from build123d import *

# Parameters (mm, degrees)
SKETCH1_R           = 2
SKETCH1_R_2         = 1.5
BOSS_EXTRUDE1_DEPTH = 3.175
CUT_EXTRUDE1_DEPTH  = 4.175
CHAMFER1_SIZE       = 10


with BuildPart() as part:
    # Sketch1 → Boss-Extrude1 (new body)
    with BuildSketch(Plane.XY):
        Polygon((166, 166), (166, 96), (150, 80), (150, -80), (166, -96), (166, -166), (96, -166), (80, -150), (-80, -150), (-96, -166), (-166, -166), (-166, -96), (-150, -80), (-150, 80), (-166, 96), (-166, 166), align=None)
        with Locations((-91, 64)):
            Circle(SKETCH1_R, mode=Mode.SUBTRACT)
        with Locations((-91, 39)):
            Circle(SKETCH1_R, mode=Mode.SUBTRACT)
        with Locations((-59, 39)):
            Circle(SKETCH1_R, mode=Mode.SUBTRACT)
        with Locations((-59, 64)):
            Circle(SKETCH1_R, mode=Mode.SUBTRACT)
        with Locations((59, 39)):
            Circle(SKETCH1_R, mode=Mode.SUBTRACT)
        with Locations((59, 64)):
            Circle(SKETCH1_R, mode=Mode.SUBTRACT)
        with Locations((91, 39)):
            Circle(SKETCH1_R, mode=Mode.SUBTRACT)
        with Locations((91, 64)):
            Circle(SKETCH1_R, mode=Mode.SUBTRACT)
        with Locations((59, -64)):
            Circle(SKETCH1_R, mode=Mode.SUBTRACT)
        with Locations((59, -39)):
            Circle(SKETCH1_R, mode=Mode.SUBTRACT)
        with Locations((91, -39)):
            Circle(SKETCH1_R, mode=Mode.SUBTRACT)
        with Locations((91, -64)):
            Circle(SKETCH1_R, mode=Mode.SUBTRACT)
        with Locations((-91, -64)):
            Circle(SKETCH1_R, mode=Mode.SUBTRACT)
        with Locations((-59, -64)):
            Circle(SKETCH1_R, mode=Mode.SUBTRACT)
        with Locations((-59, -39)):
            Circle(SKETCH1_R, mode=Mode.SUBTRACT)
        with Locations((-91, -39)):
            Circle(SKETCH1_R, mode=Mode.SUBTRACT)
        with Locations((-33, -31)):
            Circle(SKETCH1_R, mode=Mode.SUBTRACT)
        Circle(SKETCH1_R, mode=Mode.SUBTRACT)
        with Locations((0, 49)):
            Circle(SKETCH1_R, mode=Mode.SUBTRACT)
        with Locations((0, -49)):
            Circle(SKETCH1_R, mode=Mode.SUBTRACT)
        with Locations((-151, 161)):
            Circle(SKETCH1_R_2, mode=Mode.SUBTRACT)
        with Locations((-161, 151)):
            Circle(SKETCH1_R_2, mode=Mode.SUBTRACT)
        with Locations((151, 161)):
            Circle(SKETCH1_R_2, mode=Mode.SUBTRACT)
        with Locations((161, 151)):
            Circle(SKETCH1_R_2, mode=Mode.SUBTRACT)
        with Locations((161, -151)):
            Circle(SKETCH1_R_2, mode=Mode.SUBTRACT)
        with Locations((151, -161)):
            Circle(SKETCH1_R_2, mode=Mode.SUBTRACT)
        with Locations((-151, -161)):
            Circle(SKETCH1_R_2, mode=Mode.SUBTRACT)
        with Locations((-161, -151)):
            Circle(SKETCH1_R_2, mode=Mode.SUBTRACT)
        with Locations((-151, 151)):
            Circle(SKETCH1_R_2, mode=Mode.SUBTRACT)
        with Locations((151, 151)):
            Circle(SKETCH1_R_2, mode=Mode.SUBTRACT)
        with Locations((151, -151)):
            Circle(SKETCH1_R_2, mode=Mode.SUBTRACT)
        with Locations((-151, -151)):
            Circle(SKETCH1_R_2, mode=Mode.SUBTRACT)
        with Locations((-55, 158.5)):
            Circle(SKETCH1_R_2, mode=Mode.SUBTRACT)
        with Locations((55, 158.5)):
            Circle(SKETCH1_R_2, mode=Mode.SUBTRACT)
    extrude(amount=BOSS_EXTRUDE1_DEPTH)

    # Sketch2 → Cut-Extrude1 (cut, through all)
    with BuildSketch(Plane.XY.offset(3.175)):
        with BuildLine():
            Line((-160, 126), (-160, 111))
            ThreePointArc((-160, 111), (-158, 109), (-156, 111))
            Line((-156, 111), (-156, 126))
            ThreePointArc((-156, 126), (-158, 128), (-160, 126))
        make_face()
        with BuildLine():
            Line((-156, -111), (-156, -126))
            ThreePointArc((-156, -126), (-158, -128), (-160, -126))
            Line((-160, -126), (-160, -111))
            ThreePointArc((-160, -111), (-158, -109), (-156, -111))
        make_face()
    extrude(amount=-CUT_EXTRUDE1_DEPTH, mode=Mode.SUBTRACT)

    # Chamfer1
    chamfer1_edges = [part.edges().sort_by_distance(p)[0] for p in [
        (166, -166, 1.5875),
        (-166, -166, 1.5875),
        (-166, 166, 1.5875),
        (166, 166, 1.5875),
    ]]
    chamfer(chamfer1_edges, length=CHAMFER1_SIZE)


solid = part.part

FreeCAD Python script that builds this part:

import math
import FreeCAD as App
import Part
import Sketcher

V = App.Vector


def edges_at(feature, points):
    """Names of the edges that pass closest to the given points."""
    edges = feature.Shape.Edges
    near = lambda p: min(range(len(edges)), key=lambda i: edges[i].distToShape(Part.Vertex(*p))[0])
    return sorted({f"Edge{near(p) + 1}" for p in points})


def add_polygon(sketch, points):
    """Adds a closed chain of lines whose ends are joined by coincident constraints."""
    first, n = sketch.GeometryCount, len(points)
    for a, b in zip(points, points[1:] + points[:1]):
        sketch.addGeometry(Part.LineSegment(App.Vector(*a, 0), App.Vector(*b, 0)), False)
    for i in range(n):
        sketch.addConstraint(Sketcher.Constraint("Coincident", first + i, 2, first + (i + 1) % n, 1))

doc = App.newDocument("Part")
body = doc.addObject("PartDesign::Body", "Body")

# Sketch on XY plane
sketch1 = body.newObject("Sketcher::SketchObject", "Sketch")
sketch1.AttachmentSupport = (doc.getObject("XY_Plane"), [""])
sketch1.MapMode = "FlatFace"
add_polygon(sketch1, [(166, 96), (166, 166), (-166, 166), (-166, 96), (-150, 80), (-150, -80), (-166, -96), (-166, -166), (-96, -166), (-80, -150), (80, -150), (96, -166), (166, -166), (166, -96), (150, -80), (150, 80)])  # lines 0-15
sketch1.addGeometry(Part.Circle(V(151, -161, 0), V(0, 0, 1), 1.5), False)  # 16
sketch1.addGeometry(Part.Circle(V(161, -151, 0), V(0, 0, 1), 1.5), False)  # 17
sketch1.addGeometry(Part.Circle(V(151, -151, 0), V(0, 0, 1), 1.5), False)  # 18
sketch1.addGeometry(Part.Circle(V(91, -64, 0), V(0, 0, 1), 2), False)  # 19
sketch1.addGeometry(Part.Circle(V(91, -39, 0), V(0, 0, 1), 2), False)  # 20
sketch1.addGeometry(Part.Circle(V(59, -64, 0), V(0, 0, 1), 2), False)  # 21
sketch1.addGeometry(Part.Circle(V(59, -39, 0), V(0, 0, 1), 2), False)  # 22
sketch1.addGeometry(Part.Circle(V(-151, -161, 0), V(0, 0, 1), 1.5), False)  # 23
sketch1.addGeometry(Part.Circle(V(-151, -151, 0), V(0, 0, 1), 1.5), False)  # 24
sketch1.addGeometry(Part.Circle(V(-161, -151, 0), V(0, 0, 1), 1.5), False)  # 25
sketch1.addGeometry(Part.Circle(V(0, -49, 0), V(0, 0, 1), 2), False)  # 26
sketch1.addGeometry(Part.Circle(V(-59, -64, 0), V(0, 0, 1), 2), False)  # 27
sketch1.addGeometry(Part.Circle(V(-33, -31, 0), V(0, 0, 1), 2), False)  # 28
sketch1.addGeometry(Part.Circle(V(-59, -39, 0), V(0, 0, 1), 2), False)  # 29
sketch1.addGeometry(Part.Circle(V(-91, -64, 0), V(0, 0, 1), 2), False)  # 30
sketch1.addGeometry(Part.Circle(V(-91, -39, 0), V(0, 0, 1), 2), False)  # 31
sketch1.addGeometry(Part.Circle(V(91, 39, 0), V(0, 0, 1), 2), False)  # 32
sketch1.addGeometry(Part.Circle(V(91, 64, 0), V(0, 0, 1), 2), False)  # 33
sketch1.addGeometry(Part.Circle(V(59, 39, 0), V(0, 0, 1), 2), False)  # 34
sketch1.addGeometry(Part.Circle(V(59, 64, 0), V(0, 0, 1), 2), False)  # 35
sketch1.addGeometry(Part.Circle(V(161, 151, 0), V(0, 0, 1), 1.5), False)  # 36
sketch1.addGeometry(Part.Circle(V(151, 151, 0), V(0, 0, 1), 1.5), False)  # 37
sketch1.addGeometry(Part.Circle(V(151, 161, 0), V(0, 0, 1), 1.5), False)  # 38
sketch1.addGeometry(Part.Circle(V(55, 158.5, 0), V(0, 0, 1), 1.5), False)  # 39
sketch1.addGeometry(Part.Circle(V(0, 0, 0), V(0, 0, 1), 2), False)  # 40
sketch1.addGeometry(Part.Circle(V(-59, 39, 0), V(0, 0, 1), 2), False)  # 41
sketch1.addGeometry(Part.Circle(V(0, 49, 0), V(0, 0, 1), 2), False)  # 42
sketch1.addGeometry(Part.Circle(V(-59, 64, 0), V(0, 0, 1), 2), False)  # 43
sketch1.addGeometry(Part.Circle(V(-91, 39, 0), V(0, 0, 1), 2), False)  # 44
sketch1.addGeometry(Part.Circle(V(-91, 64, 0), V(0, 0, 1), 2), False)  # 45
sketch1.addGeometry(Part.Circle(V(-55, 158.5, 0), V(0, 0, 1), 1.5), False)  # 46
sketch1.addGeometry(Part.Circle(V(-151, 151, 0), V(0, 0, 1), 1.5), False)  # 47
sketch1.addGeometry(Part.Circle(V(-161, 151, 0), V(0, 0, 1), 1.5), False)  # 48
sketch1.addGeometry(Part.Circle(V(-151, 161, 0), V(0, 0, 1), 1.5), False)  # 49
sketch1.addConstraint(Sketcher.Constraint("Vertical", 0))
sketch1.addConstraint(Sketcher.Constraint("Horizontal", 1))
sketch1.addConstraint(Sketcher.Constraint("Vertical", 2))
sketch1.addConstraint(Sketcher.Constraint("Vertical", 4))
sketch1.addConstraint(Sketcher.Constraint("Vertical", 6))
sketch1.addConstraint(Sketcher.Constraint("Horizontal", 7))
sketch1.addConstraint(Sketcher.Constraint("Horizontal", 9))
sketch1.addConstraint(Sketcher.Constraint("Horizontal", 11))
sketch1.addConstraint(Sketcher.Constraint("Vertical", 12))
sketch1.addConstraint(Sketcher.Constraint("Vertical", 14))
sketch1.addConstraint(Sketcher.Constraint("Coincident", 40, 3, -1, 1))
sketch1.addConstraint(Sketcher.Constraint("Equal", 16, 17))
sketch1.addConstraint(Sketcher.Constraint("Equal", 17, 18))
sketch1.addConstraint(Sketcher.Constraint("Equal", 19, 20))
sketch1.addConstraint(Sketcher.Constraint("Equal", 20, 21))
sketch1.addConstraint(Sketcher.Constraint("Equal", 21, 22))
sketch1.addConstraint(Sketcher.Constraint("Equal", 18, 23))
sketch1.addConstraint(Sketcher.Constraint("Equal", 23, 24))
sketch1.addConstraint(Sketcher.Constraint("Equal", 24, 25))
sketch1.addConstraint(Sketcher.Constraint("Equal", 22, 26))
sketch1.addConstraint(Sketcher.Constraint("Equal", 26, 27))
sketch1.addConstraint(Sketcher.Constraint("Equal", 27, 28))
sketch1.addConstraint(Sketcher.Constraint("Equal", 28, 29))
sketch1.addConstraint(Sketcher.Constraint("Equal", 29, 30))
sketch1.addConstraint(Sketcher.Constraint("Equal", 30, 31))
sketch1.addConstraint(Sketcher.Constraint("Equal", 31, 32))
sketch1.addConstraint(Sketcher.Constraint("Equal", 32, 33))
sketch1.addConstraint(Sketcher.Constraint("Equal", 33, 34))
sketch1.addConstraint(Sketcher.Constraint("Equal", 34, 35))
sketch1.addConstraint(Sketcher.Constraint("Equal", 25, 36))
sketch1.addConstraint(Sketcher.Constraint("Equal", 36, 37))
sketch1.addConstraint(Sketcher.Constraint("Equal", 37, 38))
sketch1.addConstraint(Sketcher.Constraint("Equal", 38, 39))
sketch1.addConstraint(Sketcher.Constraint("Equal", 35, 40))
sketch1.addConstraint(Sketcher.Constraint("Equal", 40, 41))
sketch1.addConstraint(Sketcher.Constraint("Equal", 41, 42))
sketch1.addConstraint(Sketcher.Constraint("Equal", 42, 43))
sketch1.addConstraint(Sketcher.Constraint("Equal", 43, 44))
sketch1.addConstraint(Sketcher.Constraint("Equal", 44, 45))
sketch1.addConstraint(Sketcher.Constraint("Equal", 39, 46))
sketch1.addConstraint(Sketcher.Constraint("Equal", 46, 47))
sketch1.addConstraint(Sketcher.Constraint("Equal", 47, 48))
sketch1.addConstraint(Sketcher.Constraint("Equal", 48, 49))
sketch1.addConstraint(Sketcher.Constraint("Symmetric", 31, 3, 32, 3, -1, 1))
sketch1.addConstraint(Sketcher.Constraint("Symmetric", 30, 3, 33, 3, -1, 1))
sketch1.addConstraint(Sketcher.Constraint("Symmetric", 29, 3, 34, 3, -1, 1))
sketch1.addConstraint(Sketcher.Constraint("Symmetric", 27, 3, 35, 3, -1, 1))
sketch1.addConstraint(Sketcher.Constraint("Symmetric", 25, 3, 36, 3, -1, 1))
sketch1.addConstraint(Sketcher.Constraint("Symmetric", 24, 3, 37, 3, -1, 1))
sketch1.addConstraint(Sketcher.Constraint("Symmetric", 23, 3, 38, 3, -1, 1))
sketch1.addConstraint(Sketcher.Constraint("Symmetric", 22, 3, 41, 3, -1, 1))
sketch1.addConstraint(Sketcher.Constraint("Symmetric", 26, 3, 42, 3, -1, 1))
sketch1.addConstraint(Sketcher.Constraint("Symmetric", 21, 3, 43, 3, -1, 1))
sketch1.addConstraint(Sketcher.Constraint("Symmetric", 20, 3, 44, 3, -1, 1))
sketch1.addConstraint(Sketcher.Constraint("Symmetric", 19, 3, 45, 3, -1, 1))
sketch1.addConstraint(Sketcher.Constraint("Symmetric", 18, 3, 47, 3, -1, 1))
sketch1.addConstraint(Sketcher.Constraint("Symmetric", 17, 3, 48, 3, -1, 1))
sketch1.addConstraint(Sketcher.Constraint("Symmetric", 16, 3, 49, 3, -1, 1))
sketch1.addConstraint(Sketcher.Constraint("Symmetric", 0, 2, 6, 2, -1, 1))
sketch1.addConstraint(Sketcher.Constraint("Symmetric", 1, 2, 11, 2, -1, 1))
sketch1.addConstraint(Sketcher.Constraint("Symmetric", 3, 2, 13, 2, -1, 1))
sketch1.addConstraint(Sketcher.Constraint("Symmetric", 16, 3, 23, 3, -2))
sketch1.addConstraint(Sketcher.Constraint("Symmetric", 18, 3, 24, 3, -2))
sketch1.addConstraint(Sketcher.Constraint("Symmetric", 17, 3, 25, 3, -2))
sketch1.addConstraint(Sketcher.Constraint("Symmetric", 21, 3, 27, 3, -2))
sketch1.addConstraint(Sketcher.Constraint("Symmetric", 22, 3, 29, 3, -2))
sketch1.addConstraint(Sketcher.Constraint("Symmetric", 19, 3, 30, 3, -2))
sketch1.addConstraint(Sketcher.Constraint("Symmetric", 20, 3, 31, 3, -2))
sketch1.addConstraint(Sketcher.Constraint("Symmetric", 39, 3, 46, 3, -2))
sketch1.addConstraint(Sketcher.Constraint("Symmetric", 5, 2, 12, 2, -2))
sketch1.addConstraint(Sketcher.Constraint("PointOnObject", 26, 3, -2))
sketch1.addConstraint(Sketcher.Constraint("Perpendicular", 3, 5))
sketch1.addConstraint(Sketcher.Constraint("Parallel", 5, 8))
sketch1.addConstraint(Sketcher.Constraint("Perpendicular", 8, 10))
sketch1.addConstraint(Sketcher.Constraint("Parallel", 10, 13))
sketch1.addConstraint(Sketcher.Constraint("Perpendicular", 13, 15))
sketch1.addConstraint(Sketcher.Constraint("Horizontal", 17, 3, 18, 3))
sketch1.addConstraint(Sketcher.Constraint("Horizontal", 19, 3, 21, 3))
sketch1.addConstraint(Sketcher.Constraint("Horizontal", 20, 3, 22, 3))
sketch1.addConstraint(Sketcher.Constraint("Horizontal", 4, 2, 13, 2))
sketch1.addConstraint(Sketcher.Constraint("Horizontal", 3, 2, 14, 2))
sketch1.addConstraint(Sketcher.Constraint("Vertical", 16, 3, 18, 3))
sketch1.addConstraint(Sketcher.Constraint("Vertical", 19, 3, 20, 3))
sketch1.addConstraint(Sketcher.Constraint("Vertical", 21, 3, 22, 3))
sketch1.addConstraint(Sketcher.Constraint("Equal", 7, 11))
sketch1.addConstraint(Sketcher.Constraint("Equal", 11, 0))
sketch1.addConstraint(Sketcher.Constraint("Equal", 9, 4))
sketch1.addConstraint(Sketcher.Constraint("Equal", 5, 8))
sketch1.addConstraint(Sketcher.Constraint("Diameter", 16, 3.0))
sketch1.addConstraint(Sketcher.Constraint("Diameter", 19, 4.0))
sketch1.addConstraint(Sketcher.Constraint("DistanceX", 1, 2, 1, 1, 332.0))
sketch1.addConstraint(Sketcher.Constraint("DistanceX", 7, 1, 7, 2, 70.0))
sketch1.addConstraint(Sketcher.Constraint("DistanceX", 9, 1, 9, 2, 160.0))
sketch1.addConstraint(Sketcher.Constraint("DistanceX", -1, 1, 16, 3, 151.0))
sketch1.addConstraint(Sketcher.Constraint("DistanceY", 16, 3, -1, 1, 161.0))
sketch1.addConstraint(Sketcher.Constraint("DistanceX", -1, 1, 17, 3, 161.0))
sketch1.addConstraint(Sketcher.Constraint("DistanceY", 17, 3, -1, 1, 151.0))
sketch1.addConstraint(Sketcher.Constraint("DistanceX", -1, 1, 19, 3, 91.0))
sketch1.addConstraint(Sketcher.Constraint("DistanceY", 19, 3, -1, 1, 64.0))
sketch1.addConstraint(Sketcher.Constraint("DistanceY", 20, 3, -1, 1, 39.0))
sketch1.addConstraint(Sketcher.Constraint("DistanceX", -1, 1, 21, 3, 59.0))
sketch1.addConstraint(Sketcher.Constraint("DistanceY", 26, 3, -1, 1, 49.0))
sketch1.addConstraint(Sketcher.Constraint("DistanceX", 28, 3, -1, 1, 33.0))
sketch1.addConstraint(Sketcher.Constraint("DistanceY", 28, 3, -1, 1, 31.0))
sketch1.addConstraint(Sketcher.Constraint("DistanceX", -1, 1, 39, 3, 55.0))
sketch1.addConstraint(Sketcher.Constraint("DistanceY", -1, 1, 39, 3, 158.5))
pad1 = body.newObject("PartDesign::Pad", "Pad")
pad1.Profile = sketch1
pad1.Length = 3.175

# Sketch on XY plane
sketch2 = body.newObject("Sketcher::SketchObject", "Sketch001")
sketch2.AttachmentSupport = (doc.getObject("XY_Plane"), [""])
sketch2.MapMode = "FlatFace"
sketch2.AttachmentOffset = App.Placement(V(0, 0, 3.175), App.Rotation())
sketch2.addGeometry(Part.LineSegment(V(-160, 126, 0), V(-160, 111, 0)), False)
sketch2.addGeometry(Part.ArcOfCircle(Part.Circle(V(-158, 111, 0), V(0, 0, 1), 2), math.radians(180), math.radians(360)), False)
sketch2.addGeometry(Part.LineSegment(V(-156, 111, 0), V(-156, 126, 0)), False)
sketch2.addGeometry(Part.ArcOfCircle(Part.Circle(V(-158, 126, 0), V(0, 0, 1), 2), math.radians(0), math.radians(180)), False)
sketch2.addGeometry(Part.LineSegment(V(-156, -126, 0), V(-156, -111, 0)), False)
sketch2.addGeometry(Part.ArcOfCircle(Part.Circle(V(-158, -111, 0), V(0, 0, 1), 2), math.radians(0), math.radians(180)), False)
sketch2.addGeometry(Part.LineSegment(V(-160, -111, 0), V(-160, -126, 0)), False)
sketch2.addGeometry(Part.ArcOfCircle(Part.Circle(V(-158, -126, 0), V(0, 0, 1), 2), math.radians(180), math.radians(360)), False)
sketch2.addConstraint(Sketcher.Constraint("Tangent", 0, 2, 1, 1))
sketch2.addConstraint(Sketcher.Constraint("Tangent", 1, 2, 2, 1))
sketch2.addConstraint(Sketcher.Constraint("Tangent", 2, 2, 3, 1))
sketch2.addConstraint(Sketcher.Constraint("Tangent", 3, 2, 0, 1))
sketch2.addConstraint(Sketcher.Constraint("Tangent", 4, 2, 5, 1))
sketch2.addConstraint(Sketcher.Constraint("Tangent", 5, 2, 6, 1))
sketch2.addConstraint(Sketcher.Constraint("Tangent", 6, 2, 7, 1))
sketch2.addConstraint(Sketcher.Constraint("Tangent", 7, 2, 4, 1))
sketch2.addConstraint(Sketcher.Constraint("Vertical", 0))
sketch2.addConstraint(Sketcher.Constraint("Vertical", 2))
sketch2.addConstraint(Sketcher.Constraint("Vertical", 4))
sketch2.addConstraint(Sketcher.Constraint("Vertical", 6))
sketch2.addConstraint(Sketcher.Constraint("Equal", 3, 5))
sketch2.addConstraint(Sketcher.Constraint("Symmetric", 1, 3, 5, 3, -1))
sketch2.addConstraint(Sketcher.Constraint("Equal", 2, 4))
sketch2.addConstraint(Sketcher.Constraint("Radius", 1, 2.0))
sketch2.addConstraint(Sketcher.Constraint("DistanceY", 0, 2, 0, 1, 15.0))
sketch2.addConstraint(Sketcher.Constraint("DistanceX", 1, 3, -1, 1, 158.0))
sketch2.addConstraint(Sketcher.Constraint("DistanceY", -1, 1, 1, 3, 111.0))
pocket1 = body.newObject("PartDesign::Pocket", "Pocket")
pocket1.Profile = sketch2
pocket1.Type = "ThroughAll"
doc.recompute()

chamfer = body.newObject("PartDesign::Chamfer", "Chamfer")
chamfer.Base = (pocket1, edges_at(pocket1, [
    (166, -166, 1.587),
    (-166, -166, 1.587),
    (-166, 166, 1.587),
    (166, 166, 1.587),
]))
chamfer.Size = 10

doc.recompute()
